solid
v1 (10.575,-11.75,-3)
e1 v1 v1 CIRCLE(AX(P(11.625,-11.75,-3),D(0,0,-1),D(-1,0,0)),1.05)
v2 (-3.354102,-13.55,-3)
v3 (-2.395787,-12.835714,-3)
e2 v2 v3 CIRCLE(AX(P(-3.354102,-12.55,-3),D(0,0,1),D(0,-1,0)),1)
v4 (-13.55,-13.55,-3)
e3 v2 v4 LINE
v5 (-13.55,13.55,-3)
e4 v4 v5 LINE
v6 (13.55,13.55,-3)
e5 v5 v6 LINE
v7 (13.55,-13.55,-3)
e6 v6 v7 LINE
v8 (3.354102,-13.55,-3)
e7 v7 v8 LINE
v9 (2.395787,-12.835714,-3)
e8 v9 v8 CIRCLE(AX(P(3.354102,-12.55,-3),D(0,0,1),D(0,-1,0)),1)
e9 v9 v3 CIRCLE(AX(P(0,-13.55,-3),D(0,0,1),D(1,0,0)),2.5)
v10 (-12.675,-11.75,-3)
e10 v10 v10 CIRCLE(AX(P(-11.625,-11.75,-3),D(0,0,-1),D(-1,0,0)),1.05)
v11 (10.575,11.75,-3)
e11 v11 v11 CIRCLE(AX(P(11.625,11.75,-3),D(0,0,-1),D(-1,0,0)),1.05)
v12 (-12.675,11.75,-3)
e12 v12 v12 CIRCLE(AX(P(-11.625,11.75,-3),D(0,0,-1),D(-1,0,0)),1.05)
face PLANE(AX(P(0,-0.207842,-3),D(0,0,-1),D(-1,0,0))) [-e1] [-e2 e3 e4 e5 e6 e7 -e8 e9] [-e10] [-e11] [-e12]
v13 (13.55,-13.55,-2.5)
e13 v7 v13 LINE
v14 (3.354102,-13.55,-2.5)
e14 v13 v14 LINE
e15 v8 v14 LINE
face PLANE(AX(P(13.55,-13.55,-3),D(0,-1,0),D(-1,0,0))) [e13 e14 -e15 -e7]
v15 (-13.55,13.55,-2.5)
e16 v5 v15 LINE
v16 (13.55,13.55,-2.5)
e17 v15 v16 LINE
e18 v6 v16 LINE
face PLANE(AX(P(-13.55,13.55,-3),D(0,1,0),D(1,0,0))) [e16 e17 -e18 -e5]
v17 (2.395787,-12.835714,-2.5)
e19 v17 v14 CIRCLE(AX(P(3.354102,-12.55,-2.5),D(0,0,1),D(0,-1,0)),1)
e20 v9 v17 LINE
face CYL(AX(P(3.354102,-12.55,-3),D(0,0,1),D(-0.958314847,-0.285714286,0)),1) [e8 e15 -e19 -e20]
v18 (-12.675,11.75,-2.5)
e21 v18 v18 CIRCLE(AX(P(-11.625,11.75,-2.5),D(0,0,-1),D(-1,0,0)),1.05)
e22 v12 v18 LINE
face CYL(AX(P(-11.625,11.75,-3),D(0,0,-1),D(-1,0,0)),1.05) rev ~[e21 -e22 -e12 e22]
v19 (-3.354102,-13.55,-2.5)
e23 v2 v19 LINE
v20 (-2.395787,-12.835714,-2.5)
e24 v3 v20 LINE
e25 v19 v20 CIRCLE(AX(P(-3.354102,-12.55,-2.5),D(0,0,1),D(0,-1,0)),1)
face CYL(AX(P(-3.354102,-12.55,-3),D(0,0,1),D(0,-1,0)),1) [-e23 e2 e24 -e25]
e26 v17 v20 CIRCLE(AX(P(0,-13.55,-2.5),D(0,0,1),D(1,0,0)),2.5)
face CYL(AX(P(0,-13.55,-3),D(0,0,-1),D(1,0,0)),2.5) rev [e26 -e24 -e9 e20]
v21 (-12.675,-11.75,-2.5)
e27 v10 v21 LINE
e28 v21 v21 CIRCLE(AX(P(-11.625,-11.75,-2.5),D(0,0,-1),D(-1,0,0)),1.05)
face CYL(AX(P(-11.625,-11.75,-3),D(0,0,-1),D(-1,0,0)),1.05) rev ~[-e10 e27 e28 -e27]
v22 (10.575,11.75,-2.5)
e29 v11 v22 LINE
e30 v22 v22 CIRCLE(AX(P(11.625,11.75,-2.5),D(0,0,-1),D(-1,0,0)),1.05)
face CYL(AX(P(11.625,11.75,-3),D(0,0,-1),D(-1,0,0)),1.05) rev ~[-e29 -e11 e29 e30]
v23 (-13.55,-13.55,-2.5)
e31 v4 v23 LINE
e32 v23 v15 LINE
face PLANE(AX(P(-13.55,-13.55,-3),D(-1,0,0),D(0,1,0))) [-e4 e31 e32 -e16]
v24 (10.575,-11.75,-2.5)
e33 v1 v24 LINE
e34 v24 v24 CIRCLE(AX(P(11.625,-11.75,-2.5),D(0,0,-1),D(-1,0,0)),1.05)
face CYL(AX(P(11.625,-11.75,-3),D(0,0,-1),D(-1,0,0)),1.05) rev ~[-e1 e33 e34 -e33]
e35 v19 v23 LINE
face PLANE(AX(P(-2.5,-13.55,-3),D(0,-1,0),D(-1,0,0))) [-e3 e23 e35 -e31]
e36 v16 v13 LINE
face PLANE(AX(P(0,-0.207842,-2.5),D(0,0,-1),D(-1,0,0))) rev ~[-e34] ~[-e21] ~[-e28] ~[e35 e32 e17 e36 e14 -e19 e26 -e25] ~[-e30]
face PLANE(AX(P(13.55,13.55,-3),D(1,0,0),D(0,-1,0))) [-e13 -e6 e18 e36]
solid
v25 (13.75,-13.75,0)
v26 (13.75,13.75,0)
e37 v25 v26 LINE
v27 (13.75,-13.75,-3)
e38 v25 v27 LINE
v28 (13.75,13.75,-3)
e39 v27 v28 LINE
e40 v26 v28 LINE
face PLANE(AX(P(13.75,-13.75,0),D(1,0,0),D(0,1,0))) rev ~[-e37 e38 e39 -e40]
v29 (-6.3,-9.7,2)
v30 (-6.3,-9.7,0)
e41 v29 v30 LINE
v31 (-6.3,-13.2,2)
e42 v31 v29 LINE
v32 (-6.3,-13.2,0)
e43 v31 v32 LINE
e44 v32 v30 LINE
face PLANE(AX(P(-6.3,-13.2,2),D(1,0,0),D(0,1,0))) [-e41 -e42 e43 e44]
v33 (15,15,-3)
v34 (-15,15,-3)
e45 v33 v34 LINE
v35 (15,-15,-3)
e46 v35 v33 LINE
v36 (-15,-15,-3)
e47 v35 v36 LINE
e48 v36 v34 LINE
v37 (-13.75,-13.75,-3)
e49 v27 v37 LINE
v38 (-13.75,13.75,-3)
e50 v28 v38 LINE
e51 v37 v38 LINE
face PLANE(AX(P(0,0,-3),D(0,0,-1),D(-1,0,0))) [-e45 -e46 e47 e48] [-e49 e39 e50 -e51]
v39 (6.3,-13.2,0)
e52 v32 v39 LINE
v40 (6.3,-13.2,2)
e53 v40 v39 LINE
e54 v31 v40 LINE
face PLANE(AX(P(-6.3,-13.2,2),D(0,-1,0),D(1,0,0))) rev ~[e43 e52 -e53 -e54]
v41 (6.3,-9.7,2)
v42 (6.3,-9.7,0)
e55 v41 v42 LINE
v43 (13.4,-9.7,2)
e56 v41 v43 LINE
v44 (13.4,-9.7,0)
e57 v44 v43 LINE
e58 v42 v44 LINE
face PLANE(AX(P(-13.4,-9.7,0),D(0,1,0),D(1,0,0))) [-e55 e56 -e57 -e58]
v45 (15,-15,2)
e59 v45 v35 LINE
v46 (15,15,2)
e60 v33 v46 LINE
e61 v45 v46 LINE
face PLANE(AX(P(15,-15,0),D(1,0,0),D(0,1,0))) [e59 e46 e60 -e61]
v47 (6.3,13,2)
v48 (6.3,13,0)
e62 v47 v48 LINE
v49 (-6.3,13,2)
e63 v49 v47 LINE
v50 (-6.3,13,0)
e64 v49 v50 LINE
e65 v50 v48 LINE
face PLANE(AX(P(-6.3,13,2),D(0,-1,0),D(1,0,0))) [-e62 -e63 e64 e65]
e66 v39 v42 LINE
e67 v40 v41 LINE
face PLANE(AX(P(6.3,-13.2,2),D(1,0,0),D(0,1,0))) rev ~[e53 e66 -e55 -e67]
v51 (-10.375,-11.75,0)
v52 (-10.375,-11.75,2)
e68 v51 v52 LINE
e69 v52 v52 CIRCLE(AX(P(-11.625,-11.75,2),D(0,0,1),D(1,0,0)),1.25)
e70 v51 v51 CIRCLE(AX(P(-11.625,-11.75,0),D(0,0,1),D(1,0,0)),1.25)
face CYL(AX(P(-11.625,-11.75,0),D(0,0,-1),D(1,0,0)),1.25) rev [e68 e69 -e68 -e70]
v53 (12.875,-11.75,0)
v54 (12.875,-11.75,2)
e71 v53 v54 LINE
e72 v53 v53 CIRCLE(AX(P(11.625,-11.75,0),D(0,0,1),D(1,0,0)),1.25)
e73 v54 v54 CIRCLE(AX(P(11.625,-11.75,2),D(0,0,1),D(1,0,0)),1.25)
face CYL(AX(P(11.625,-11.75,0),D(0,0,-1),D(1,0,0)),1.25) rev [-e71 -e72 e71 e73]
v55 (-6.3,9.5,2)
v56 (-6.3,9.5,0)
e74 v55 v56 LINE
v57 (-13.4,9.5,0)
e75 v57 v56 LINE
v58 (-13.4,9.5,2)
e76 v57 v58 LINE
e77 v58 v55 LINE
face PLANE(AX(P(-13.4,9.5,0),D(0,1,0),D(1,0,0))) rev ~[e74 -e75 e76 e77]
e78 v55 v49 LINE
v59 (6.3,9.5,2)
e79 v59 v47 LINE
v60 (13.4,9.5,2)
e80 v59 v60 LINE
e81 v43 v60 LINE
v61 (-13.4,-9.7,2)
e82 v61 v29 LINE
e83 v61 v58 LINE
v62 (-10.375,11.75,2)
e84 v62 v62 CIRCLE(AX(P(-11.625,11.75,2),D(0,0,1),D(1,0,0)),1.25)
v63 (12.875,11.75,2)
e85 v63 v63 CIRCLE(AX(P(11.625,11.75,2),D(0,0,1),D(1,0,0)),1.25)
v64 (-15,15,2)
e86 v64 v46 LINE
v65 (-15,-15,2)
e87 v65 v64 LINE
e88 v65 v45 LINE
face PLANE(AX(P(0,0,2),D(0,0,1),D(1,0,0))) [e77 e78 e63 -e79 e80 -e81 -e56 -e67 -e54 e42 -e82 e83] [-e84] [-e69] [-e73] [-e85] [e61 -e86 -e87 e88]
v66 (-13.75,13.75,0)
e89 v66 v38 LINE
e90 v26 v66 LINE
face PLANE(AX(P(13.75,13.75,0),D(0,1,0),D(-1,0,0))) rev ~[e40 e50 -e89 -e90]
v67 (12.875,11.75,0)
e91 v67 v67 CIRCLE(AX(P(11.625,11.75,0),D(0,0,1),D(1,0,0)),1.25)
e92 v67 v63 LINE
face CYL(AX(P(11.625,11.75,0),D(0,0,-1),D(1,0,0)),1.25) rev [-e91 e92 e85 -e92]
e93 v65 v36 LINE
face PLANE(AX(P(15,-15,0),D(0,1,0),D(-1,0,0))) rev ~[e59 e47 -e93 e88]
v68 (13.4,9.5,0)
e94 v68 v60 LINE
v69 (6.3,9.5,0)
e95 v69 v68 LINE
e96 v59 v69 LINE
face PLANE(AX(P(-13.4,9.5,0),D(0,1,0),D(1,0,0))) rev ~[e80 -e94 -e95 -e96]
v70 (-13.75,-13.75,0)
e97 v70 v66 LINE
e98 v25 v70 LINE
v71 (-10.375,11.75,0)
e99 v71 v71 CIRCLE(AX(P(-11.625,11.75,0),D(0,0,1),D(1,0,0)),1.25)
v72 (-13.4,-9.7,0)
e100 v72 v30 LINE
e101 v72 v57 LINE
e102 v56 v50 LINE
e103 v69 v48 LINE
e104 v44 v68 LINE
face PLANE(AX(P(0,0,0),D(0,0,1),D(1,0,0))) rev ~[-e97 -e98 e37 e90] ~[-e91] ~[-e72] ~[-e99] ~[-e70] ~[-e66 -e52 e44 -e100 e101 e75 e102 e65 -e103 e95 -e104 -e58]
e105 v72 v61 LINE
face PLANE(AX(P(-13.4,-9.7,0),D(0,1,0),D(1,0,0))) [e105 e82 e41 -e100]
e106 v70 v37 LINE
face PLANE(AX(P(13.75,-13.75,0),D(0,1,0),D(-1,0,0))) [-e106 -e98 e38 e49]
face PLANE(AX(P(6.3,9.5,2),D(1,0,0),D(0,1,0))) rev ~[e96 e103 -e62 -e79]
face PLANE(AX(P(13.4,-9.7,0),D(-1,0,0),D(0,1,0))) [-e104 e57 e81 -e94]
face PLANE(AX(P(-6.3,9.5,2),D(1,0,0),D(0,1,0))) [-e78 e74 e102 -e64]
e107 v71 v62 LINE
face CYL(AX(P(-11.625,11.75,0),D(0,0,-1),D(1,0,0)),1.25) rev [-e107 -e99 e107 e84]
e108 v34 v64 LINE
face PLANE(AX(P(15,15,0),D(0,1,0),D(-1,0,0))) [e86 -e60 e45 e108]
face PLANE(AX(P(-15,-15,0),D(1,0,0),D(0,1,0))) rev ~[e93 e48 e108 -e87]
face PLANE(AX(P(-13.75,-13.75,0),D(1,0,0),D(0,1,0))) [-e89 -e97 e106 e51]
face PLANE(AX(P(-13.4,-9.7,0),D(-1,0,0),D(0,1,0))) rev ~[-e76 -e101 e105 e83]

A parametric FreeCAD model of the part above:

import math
import FreeCAD as App
import Part
import Sketcher
from FreeCAD import Vector


def edges_at(feature, points):
    """Names of the edges that pass closest to the given points."""
    edges = feature.Shape.Edges
    near = lambda p: min(range(len(edges)), key=lambda i: edges[i].distToShape(Part.Vertex(*p))[0])
    return sorted({f"Edge{near(p) + 1}" for p in points})


def add_polygon(sketch, points):
    """Adds a closed chain of lines whose ends are joined by coincident constraints."""
    first, n = sketch.GeometryCount, len(points)
    for a, b in zip(points, points[1:] + points[:1]):
        sketch.addGeometry(Part.LineSegment(App.Vector(*a, 0), App.Vector(*b, 0)), False)
    for i in range(n):
        sketch.addConstraint(Sketcher.Constraint("Coincident", first + i, 2, first + (i + 1) % n, 1))

doc = App.newDocument("Part")
body = doc.addObject("PartDesign::Body", "Body")

# Sketch on XY plane
sketch1 = body.newObject("Sketcher::SketchObject", "Sketch")
sketch1.AttachmentSupport = (doc.getObject("XY_Plane"), [""])
sketch1.MapMode = "FlatFace"
add_polygon(sketch1, [(-15, 15), (-15, -15), (15, -15), (15, 15)])  # lines 0-3
sketch1.addGeometry(Part.Circle(Vector(-11.6, -11.8, 0), Vector(0, 0, 1), 1.2), False)  # 4
add_polygon(sketch1, [(13.4, -9.7), (-13.4, -9.7), (-13.4, 9.5), (13.4, 9.5)])  # lines 5-8
sketch1.addGeometry(Part.Circle(Vector(11.6, -11.8, 0), Vector(0, 0, 1), 1.2), False)  # 9
sketch1.addGeometry(Part.Circle(Vector(-11.6, 11.8, 0), Vector(0, 0, 1), 1.2), False)  # 10
sketch1.addGeometry(Part.Circle(Vector(11.6, 11.8, 0), Vector(0, 0, 1), 1.2), False)  # 11
sketch1.addConstraint([
    Sketcher.Constraint("Vertical", 0),
    Sketcher.Constraint("Horizontal", 1),
    Sketcher.Constraint("Vertical", 2),
    Sketcher.Constraint("Horizontal", 3),
    Sketcher.Constraint("Horizontal", 5),
    Sketcher.Constraint("Vertical", 6),
    Sketcher.Constraint("Horizontal", 7),
    Sketcher.Constraint("Vertical", 8),
    Sketcher.Constraint("Equal", 4, 9),
    Sketcher.Constraint("Equal", 9, 10),
    Sketcher.Constraint("Equal", 10, 11),
    Sketcher.Constraint("Symmetric", 9, 3, 10, 3, -1, 1),
    Sketcher.Constraint("Symmetric", 4, 3, 11, 3, -1, 1),
    Sketcher.Constraint("Symmetric", 0, 2, 2, 2, -1, 1),
    Sketcher.Constraint("Symmetric", 4, 3, 9, 3, -2),
    Sketcher.Constraint("Equal", 3, 0),
    Sketcher.Constraint("Diameter", 4, 2.5),
    Sketcher.Constraint("DistanceX", 1, 1, 1, 2, 30.0),
    Sketcher.Constraint("DistanceX", 5, 2, 5, 1, 26.8),
    Sketcher.Constraint("DistanceY", 6, 1, 6, 2, 19.2),
    Sketcher.Constraint("DistanceX", 5, 2, -1, 1, 13.4),
    Sketcher.Constraint("DistanceY", 5, 2, -1, 1, 9.7),
    Sketcher.Constraint("DistanceY", 4, 3, 10, 3, 23.5),
    Sketcher.Constraint("DistanceX", 4, 3, 9, 3, 23.25),
])
pad1 = body.newObject("PartDesign::Pad", "Pad")
pad1.Profile = sketch1
pad1.Length = 2

# Sketch on XY plane
sketch2 = body.newObject("Sketcher::SketchObject", "Sketch001")
sketch2.AttachmentSupport = (doc.getObject("XY_Plane"), [""])
sketch2.MapMode = "FlatFace"
sketch2.AttachmentOffset = App.Placement(Vector(0, 0, 2), App.Rotation())
add_polygon(sketch2, [(-6.3, -9.7), (-6.3, -13.2), (6.3, -13.2), (6.3, -9.7)])  # lines 0-3
add_polygon(sketch2, [(-6.3, 13), (-6.3, 9.5), (6.3, 9.5), (6.3, 13)])  # lines 4-7
sketch2.addConstraint([
    Sketcher.Constraint("Vertical", 0),
    Sketcher.Constraint("Horizontal", 1),
    Sketcher.Constraint("Vertical", 2),
    Sketcher.Constraint("Horizontal", 3),
    Sketcher.Constraint("Vertical", 4),
    Sketcher.Constraint("Horizontal", 5),
    Sketcher.Constraint("Vertical", 6),
    Sketcher.Constraint("Horizontal", 7),
    Sketcher.Constraint("Vertical", 3, 2, 4, 2),
    Sketcher.Constraint("Vertical", 2, 2, 5, 2),
    Sketcher.Constraint("Equal", 2, 4),
    Sketcher.Constraint("DistanceX", 1, 1, 1, 2, 12.6),
    Sketcher.Constraint("DistanceY", 0, 2, 0, 1, 3.5),
    Sketcher.Constraint("DistanceY", -1, 1, 6, 2, 13.0),
    Sketcher.Constraint("DistanceX", 0, 2, -1, 1, 6.3),
    Sketcher.Constraint("DistanceY", 0, 2, -1, 1, 13.2),
])
pocket1 = body.newObject("PartDesign::Pocket", "Pocket")
pocket1.Profile = sketch2
pocket1.Length = 3

# Sketch on XY plane
sketch3 = body.newObject("Sketcher::SketchObject", "Sketch002")
sketch3.AttachmentSupport = (doc.getObject("XY_Plane"), [""])
sketch3.MapMode = "FlatFace"
add_polygon(sketch3, [(15, 15), (15, -15), (-15, -15), (-15, 15)])  # lines 0-3
add_polygon(sketch3, [(-14, -14), (14, -14), (14, 14), (-14, 14)])  # lines 4-7
sketch3.addConstraint([
    Sketcher.Constraint("Vertical", 0),
    Sketcher.Constraint("Horizontal", 1),
    Sketcher.Constraint("Vertical", 2),
    Sketcher.Constraint("Horizontal", 3),
    Sketcher.Constraint("Horizontal", 4),
    Sketcher.Constraint("Vertical", 5),
    Sketcher.Constraint("Horizontal", 6),
    Sketcher.Constraint("Vertical", 7),
    Sketcher.Constraint("Symmetric", 0, 2, 2, 2, -1, 1),
    Sketcher.Constraint("Symmetric", 4, 2, 6, 2, -1, 1),
    Sketcher.Constraint("Equal", 3, 0),
    Sketcher.Constraint("Equal", 6, 5),
    Sketcher.Constraint("DistanceX", 1, 2, 1, 1, 30.0),
    Sketcher.Constraint("DistanceX", 4, 1, 4, 2, 27.5),
])
pad2 = body.newObject("PartDesign::Pad", "Pad001")
pad2.Profile = sketch3
pad2.Length = 3
pad2.Reversed = True
body2 = doc.addObject("PartDesign::Body", "Body001")

# Sketch on XY plane
sketch4 = body2.newObject("Sketcher::SketchObject", "Sketch003")
sketch4.AttachmentSupport = (doc.getObject("XY_Plane001"), [""])
sketch4.MapMode = "FlatFace"
sketch4.AttachmentOffset = App.Placement(Vector(0, 0, -3), App.Rotation())
sketch4.addGeometry([
    Part.LineSegment(Vector(-2.5, -13.6, 0), Vector(-13.6, -13.6, 0)),  # 0
    Part.LineSegment(Vector(-13.6, -13.6, 0), Vector(-13.6, 13.6, 0)),  # 1
    Part.LineSegment(Vector(-13.6, 13.6, 0), Vector(13.6, 13.6, 0)),  # 2
    Part.LineSegment(Vector(13.6, 13.6, 0), Vector(13.6, -13.6, 0)),  # 3
    Part.LineSegment(Vector(13.6, -13.6, 0), Vector(2.5, -13.6, 0)),  # 4
    Part.ArcOfCircle(Part.Circle(Vector(0, -13.6, 0), Vector(0, 0, 1), 2.5), math.radians(0), math.radians(180)),  # 5
    Part.Circle(Vector(11.6, -11.8, 0), Vector(0, 0, 1), 1.1),  # 6
    Part.Circle(Vector(-11.6, -11.8, 0), Vector(0, 0, 1), 1.1),  # 7
    Part.Circle(Vector(11.6, 11.8, 0), Vector(0, 0, 1), 1.1),  # 8
    Part.Circle(Vector(-11.6, 11.8, 0), Vector(0, 0, 1), 1.1),  # 9
], False)
sketch4.addConstraint([
    Sketcher.Constraint("Coincident", 0, 2, 1, 1),
    Sketcher.Constraint("Coincident", 1, 2, 2, 1),
    Sketcher.Constraint("Coincident", 2, 2, 3, 1),
    Sketcher.Constraint("Coincident", 3, 2, 4, 1),
    Sketcher.Constraint("Coincident", 4, 2, 5, 1),
    Sketcher.Constraint("Coincident", 5, 2, 0, 1),
    Sketcher.Constraint("Horizontal", 0),
    Sketcher.Constraint("Vertical", 1),
    Sketcher.Constraint("Horizontal", 2),
    Sketcher.Constraint("Vertical", 3),
    Sketcher.Constraint("Horizontal", 4),
    Sketcher.Constraint("Equal", 6, 7),
    Sketcher.Constraint("Equal", 7, 8),
    Sketcher.Constraint("Equal", 8, 9),
    Sketcher.Constraint("Symmetric", 7, 3, 8, 3, -1, 1),
    Sketcher.Constraint("Symmetric", 6, 3, 9, 3, -1, 1),
    Sketcher.Constraint("Symmetric", 0, 2, 2, 2, -1, 1),
    Sketcher.Constraint("Symmetric", 6, 3, 7, 3, -2),
    Sketcher.Constraint("Symmetric", 4, 2, 5, 2, -2),
    Sketcher.Constraint("Horizontal", 5, 3, 0, 2),
    Sketcher.Constraint("Equal", 2, 1),
    Sketcher.Constraint("Diameter", 6, 2.1),
    Sketcher.Constraint("Radius", 5, 2.5),
    Sketcher.Constraint("DistanceX", 2, 1, 2, 2, 27.1),
    Sketcher.Constraint("DistanceY", 5, 3, 6, 3, 1.8),
    Sketcher.Constraint("DistanceX", 7, 3, 6, 3, 23.25),
])
pad3 = body2.newObject("PartDesign::Pad", "Pad002")
pad3.Profile = sketch4
pad3.Length = 0.5
doc.recompute()

fillet = body2.newObject("PartDesign::Fillet", "Fillet")
fillet.Base = (pad3, edges_at(pad3, [(2.5, -13.55, -2.75), (-2.5, -13.55, -2.75)]))
fillet.Radius = 1

doc.recompute()
